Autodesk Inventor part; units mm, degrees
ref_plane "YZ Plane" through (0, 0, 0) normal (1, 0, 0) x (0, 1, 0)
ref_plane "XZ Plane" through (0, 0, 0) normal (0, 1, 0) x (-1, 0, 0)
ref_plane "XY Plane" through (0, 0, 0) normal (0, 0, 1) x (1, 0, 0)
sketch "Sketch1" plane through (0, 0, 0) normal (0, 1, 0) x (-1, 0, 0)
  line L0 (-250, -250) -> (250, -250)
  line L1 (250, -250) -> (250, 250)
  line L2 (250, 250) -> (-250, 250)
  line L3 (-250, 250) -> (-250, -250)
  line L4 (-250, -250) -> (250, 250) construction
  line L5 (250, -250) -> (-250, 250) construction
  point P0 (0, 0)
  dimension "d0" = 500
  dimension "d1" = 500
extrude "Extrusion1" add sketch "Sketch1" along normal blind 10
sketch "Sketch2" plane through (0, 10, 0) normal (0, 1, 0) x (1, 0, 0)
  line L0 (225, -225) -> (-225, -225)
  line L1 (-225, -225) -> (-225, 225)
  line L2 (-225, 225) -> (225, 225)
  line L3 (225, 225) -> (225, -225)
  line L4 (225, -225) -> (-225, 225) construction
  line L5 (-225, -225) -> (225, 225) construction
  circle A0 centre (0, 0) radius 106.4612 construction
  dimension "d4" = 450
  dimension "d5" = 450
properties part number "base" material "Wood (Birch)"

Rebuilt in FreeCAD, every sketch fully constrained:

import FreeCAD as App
import Part
import Sketcher

doc = App.newDocument("Part")
body = doc.addObject("PartDesign::Body", "Body")

# Sketch on XZ plane
sketch1 = body.newObject("Sketcher::SketchObject", "Sketch")
sketch1.AttachmentSupport = (doc.getObject("XZ_Plane"), [""])
sketch1.MapMode = "FlatFace"
sketch1.addGeometry([
    Part.LineSegment(App.Vector(250, 250, 0), App.Vector(250, -250, 0)),
    Part.LineSegment(App.Vector(250, -250, 0), App.Vector(-250, -250, 0)),
    Part.LineSegment(App.Vector(-250, -250, 0), App.Vector(-250, 250, 0)),
    Part.LineSegment(App.Vector(-250, 250, 0), App.Vector(250, 250, 0)),
], False)
sketch1.addConstraint([
    Sketcher.Constraint("Coincident", 0, 2, 1, 1),
    Sketcher.Constraint("Coincident", 1, 2, 2, 1),
    Sketcher.Constraint("Coincident", 2, 2, 3, 1),
    Sketcher.Constraint("Coincident", 3, 2, 0, 1),
    Sketcher.Constraint("Vertical", 0),
    Sketcher.Constraint("Horizontal", 1),
    Sketcher.Constraint("Vertical", 2),
    Sketcher.Constraint("Horizontal", 3),
    Sketcher.Constraint("Symmetric", 0, 2, 2, 2, -1, 1),
    Sketcher.Constraint("Equal", 3, 0),
    Sketcher.Constraint("DistanceX", 1, 2, 1, 1, 500.0),
])
pad1 = body.newObject("PartDesign::Pad", "Pad")
pad1.Profile = sketch1
pad1.Length = 10
pad1.Reversed = True

doc.recompute()
